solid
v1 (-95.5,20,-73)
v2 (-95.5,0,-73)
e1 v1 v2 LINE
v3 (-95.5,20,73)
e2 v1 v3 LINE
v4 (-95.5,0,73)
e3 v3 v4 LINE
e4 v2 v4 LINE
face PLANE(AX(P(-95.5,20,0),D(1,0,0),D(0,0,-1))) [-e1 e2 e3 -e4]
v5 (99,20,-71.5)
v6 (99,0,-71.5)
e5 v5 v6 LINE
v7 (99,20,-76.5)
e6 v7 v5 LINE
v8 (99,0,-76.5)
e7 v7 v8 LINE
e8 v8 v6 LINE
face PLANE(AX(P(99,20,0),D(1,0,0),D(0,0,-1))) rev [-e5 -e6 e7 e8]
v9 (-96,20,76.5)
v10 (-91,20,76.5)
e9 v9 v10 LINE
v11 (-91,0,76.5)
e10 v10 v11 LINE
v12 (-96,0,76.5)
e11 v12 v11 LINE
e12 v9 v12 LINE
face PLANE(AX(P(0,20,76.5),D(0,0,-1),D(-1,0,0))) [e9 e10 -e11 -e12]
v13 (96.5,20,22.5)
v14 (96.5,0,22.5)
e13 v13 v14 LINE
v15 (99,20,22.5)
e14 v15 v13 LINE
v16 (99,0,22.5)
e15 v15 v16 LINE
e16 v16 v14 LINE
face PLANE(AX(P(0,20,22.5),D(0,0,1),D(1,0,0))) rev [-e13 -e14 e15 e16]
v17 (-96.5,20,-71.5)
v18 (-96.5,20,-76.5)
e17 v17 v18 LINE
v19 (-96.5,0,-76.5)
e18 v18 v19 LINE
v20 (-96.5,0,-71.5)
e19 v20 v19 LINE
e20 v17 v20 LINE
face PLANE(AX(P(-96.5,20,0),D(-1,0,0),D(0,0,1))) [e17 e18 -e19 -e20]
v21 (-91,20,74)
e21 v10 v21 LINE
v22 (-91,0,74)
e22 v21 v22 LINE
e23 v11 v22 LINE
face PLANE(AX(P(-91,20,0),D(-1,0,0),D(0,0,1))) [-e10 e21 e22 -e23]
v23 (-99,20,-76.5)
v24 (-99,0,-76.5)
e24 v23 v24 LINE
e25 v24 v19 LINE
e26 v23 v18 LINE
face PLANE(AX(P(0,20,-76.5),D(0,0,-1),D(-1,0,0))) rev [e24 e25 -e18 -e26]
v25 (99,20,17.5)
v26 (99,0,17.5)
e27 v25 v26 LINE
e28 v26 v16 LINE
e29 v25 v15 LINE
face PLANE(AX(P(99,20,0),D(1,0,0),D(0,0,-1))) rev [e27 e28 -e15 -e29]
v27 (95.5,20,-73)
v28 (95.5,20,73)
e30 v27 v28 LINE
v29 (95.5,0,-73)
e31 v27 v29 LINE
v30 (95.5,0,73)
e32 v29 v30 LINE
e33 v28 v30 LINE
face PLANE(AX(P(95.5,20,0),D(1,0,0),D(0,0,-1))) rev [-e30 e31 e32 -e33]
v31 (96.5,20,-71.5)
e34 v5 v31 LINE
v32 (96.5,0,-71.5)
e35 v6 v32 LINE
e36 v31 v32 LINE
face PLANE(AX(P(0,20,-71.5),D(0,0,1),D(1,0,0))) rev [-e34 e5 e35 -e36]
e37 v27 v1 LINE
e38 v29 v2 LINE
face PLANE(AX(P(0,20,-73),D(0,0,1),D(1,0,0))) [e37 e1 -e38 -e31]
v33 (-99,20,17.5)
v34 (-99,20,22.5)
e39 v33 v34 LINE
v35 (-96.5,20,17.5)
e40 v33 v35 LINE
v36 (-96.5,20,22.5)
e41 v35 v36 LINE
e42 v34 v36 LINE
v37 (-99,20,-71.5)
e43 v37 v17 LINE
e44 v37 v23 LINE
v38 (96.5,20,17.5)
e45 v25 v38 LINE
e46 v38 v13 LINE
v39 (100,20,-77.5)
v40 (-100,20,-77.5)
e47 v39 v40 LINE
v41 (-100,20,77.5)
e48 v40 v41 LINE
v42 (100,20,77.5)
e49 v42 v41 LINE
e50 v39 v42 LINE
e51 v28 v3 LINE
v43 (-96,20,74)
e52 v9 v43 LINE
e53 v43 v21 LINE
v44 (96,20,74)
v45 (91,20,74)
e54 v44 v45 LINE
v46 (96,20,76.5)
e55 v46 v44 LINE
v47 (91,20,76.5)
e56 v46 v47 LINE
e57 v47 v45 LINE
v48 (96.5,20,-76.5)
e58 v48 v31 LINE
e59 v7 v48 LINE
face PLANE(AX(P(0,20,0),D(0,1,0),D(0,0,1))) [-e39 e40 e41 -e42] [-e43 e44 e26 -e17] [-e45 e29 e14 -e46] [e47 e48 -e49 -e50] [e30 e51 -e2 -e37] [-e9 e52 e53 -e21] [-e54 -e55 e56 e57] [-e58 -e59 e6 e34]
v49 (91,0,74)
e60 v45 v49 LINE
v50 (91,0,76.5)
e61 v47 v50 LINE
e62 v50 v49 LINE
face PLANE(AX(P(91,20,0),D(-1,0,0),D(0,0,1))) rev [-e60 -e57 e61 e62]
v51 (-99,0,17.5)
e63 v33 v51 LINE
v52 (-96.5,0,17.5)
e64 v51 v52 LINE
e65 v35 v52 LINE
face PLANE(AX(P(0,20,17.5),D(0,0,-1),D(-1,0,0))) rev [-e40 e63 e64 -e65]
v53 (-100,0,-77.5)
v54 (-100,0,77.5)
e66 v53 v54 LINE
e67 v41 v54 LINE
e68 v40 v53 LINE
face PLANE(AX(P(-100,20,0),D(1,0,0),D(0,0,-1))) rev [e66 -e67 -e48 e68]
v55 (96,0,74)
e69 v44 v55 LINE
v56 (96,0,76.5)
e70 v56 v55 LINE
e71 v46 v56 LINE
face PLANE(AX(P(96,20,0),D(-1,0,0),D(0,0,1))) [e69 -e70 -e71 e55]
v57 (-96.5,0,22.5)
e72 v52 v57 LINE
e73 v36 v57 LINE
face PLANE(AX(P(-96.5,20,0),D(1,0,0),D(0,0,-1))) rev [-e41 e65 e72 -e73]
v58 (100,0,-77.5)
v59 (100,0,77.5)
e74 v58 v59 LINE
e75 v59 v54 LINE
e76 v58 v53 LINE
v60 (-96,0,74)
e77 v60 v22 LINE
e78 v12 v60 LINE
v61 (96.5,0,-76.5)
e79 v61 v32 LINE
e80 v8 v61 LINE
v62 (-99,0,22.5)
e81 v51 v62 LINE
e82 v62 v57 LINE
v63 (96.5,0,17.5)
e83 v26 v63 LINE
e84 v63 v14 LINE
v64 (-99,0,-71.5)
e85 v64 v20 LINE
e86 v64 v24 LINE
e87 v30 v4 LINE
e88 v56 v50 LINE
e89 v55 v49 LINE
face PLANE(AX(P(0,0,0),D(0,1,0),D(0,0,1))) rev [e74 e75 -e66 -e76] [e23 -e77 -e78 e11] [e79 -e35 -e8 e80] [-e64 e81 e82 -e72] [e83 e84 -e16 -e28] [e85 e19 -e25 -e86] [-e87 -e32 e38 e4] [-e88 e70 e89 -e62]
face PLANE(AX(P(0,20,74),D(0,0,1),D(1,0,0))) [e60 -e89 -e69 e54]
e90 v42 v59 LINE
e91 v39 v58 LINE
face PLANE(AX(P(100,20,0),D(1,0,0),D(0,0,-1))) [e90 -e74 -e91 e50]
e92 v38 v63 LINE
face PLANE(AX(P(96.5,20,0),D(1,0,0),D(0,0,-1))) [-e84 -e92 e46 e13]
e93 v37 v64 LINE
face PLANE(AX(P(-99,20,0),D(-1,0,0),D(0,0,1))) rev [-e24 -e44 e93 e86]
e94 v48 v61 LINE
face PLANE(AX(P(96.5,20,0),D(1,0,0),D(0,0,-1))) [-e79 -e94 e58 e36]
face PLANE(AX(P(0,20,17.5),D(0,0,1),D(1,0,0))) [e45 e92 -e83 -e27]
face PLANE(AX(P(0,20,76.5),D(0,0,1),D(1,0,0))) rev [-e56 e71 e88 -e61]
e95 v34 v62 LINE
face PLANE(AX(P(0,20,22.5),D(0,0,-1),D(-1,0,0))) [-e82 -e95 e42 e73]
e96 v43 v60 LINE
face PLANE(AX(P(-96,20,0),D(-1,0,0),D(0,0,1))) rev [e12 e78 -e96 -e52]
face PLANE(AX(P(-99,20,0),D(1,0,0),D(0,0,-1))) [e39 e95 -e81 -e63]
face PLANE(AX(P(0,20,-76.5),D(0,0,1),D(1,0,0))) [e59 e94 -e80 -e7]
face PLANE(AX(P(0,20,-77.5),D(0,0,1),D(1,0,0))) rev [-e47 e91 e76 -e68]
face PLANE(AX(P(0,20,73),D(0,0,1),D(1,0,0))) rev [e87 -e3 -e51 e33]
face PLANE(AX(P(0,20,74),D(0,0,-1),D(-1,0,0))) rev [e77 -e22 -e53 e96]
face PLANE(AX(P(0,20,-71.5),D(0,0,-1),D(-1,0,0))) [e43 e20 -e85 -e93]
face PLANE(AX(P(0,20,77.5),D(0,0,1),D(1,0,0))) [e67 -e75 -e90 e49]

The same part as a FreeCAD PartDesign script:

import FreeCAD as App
import Part
import Sketcher
from FreeCAD import Vector

doc = App.newDocument("Part")
body = doc.addObject("PartDesign::Body", "Body")

# Sketch on XZ plane
sketch1 = body.newObject("Sketcher::SketchObject", "Sketch")
sketch1.AttachmentSupport = (doc.getObject("XZ_Plane"), [""])
sketch1.MapMode = "FlatFace"
sketch1.addGeometry(Part.LineSegment(Vector(-100, -77.5, 0), Vector(-100, 77.5, 0)), False)
sketch1.addGeometry(Part.LineSegment(Vector(-100, 77.5, 0), Vector(100, 77.5, 0)), False)
sketch1.addGeometry(Part.LineSegment(Vector(100, 77.5, 0), Vector(100, -77.5, 0)), False)
sketch1.addGeometry(Part.LineSegment(Vector(100, -77.5, 0), Vector(-100, -77.5, 0)), False)
sketch1.addGeometry(Part.LineSegment(Vector(-91, 76.5, 0), Vector(-96, 76.5, 0)), False)
sketch1.addGeometry(Part.LineSegment(Vector(-96, 76.5, 0), Vector(-96, 74, 0)), False)
sketch1.addGeometry(Part.LineSegment(Vector(-96, 74, 0), Vector(-91, 74, 0)), False)
sketch1.addGeometry(Part.LineSegment(Vector(-91, 74, 0), Vector(-91, 76.5, 0)), False)
sketch1.addGeometry(Part.LineSegment(Vector(-96.5, 22.5, 0), Vector(-99, 22.5, 0)), False)
sketch1.addGeometry(Part.LineSegment(Vector(-99, 22.5, 0), Vector(-99, 17.5, 0)), False)
sketch1.addGeometry(Part.LineSegment(Vector(-99, 17.5, 0), Vector(-96.5, 17.5, 0)), False)
sketch1.addGeometry(Part.LineSegment(Vector(-96.5, 17.5, 0), Vector(-96.5, 22.5, 0)), False)
sketch1.addGeometry(Part.LineSegment(Vector(96, 76.5, 0), Vector(91, 76.5, 0)), False)
sketch1.addGeometry(Part.LineSegment(Vector(91, 76.5, 0), Vector(91, 74, 0)), False)
sketch1.addGeometry(Part.LineSegment(Vector(91, 74, 0), Vector(96, 74, 0)), False)
sketch1.addGeometry(Part.LineSegment(Vector(96, 74, 0), Vector(96, 76.5, 0)), False)
sketch1.addGeometry(Part.LineSegment(Vector(99, 22.5, 0), Vector(96.5, 22.5, 0)), False)
sketch1.addGeometry(Part.LineSegment(Vector(96.5, 22.5, 0), Vector(96.5, 17.5, 0)), False)
sketch1.addGeometry(Part.LineSegment(Vector(96.5, 17.5, 0), Vector(99, 17.5, 0)), False)
sketch1.addGeometry(Part.LineSegment(Vector(99, 17.5, 0), Vector(99, 22.5, 0)), False)
sketch1.addGeometry(Part.LineSegment(Vector(-96.5, -71.5, 0), Vector(-99, -71.5, 0)), False)
sketch1.addGeometry(Part.LineSegment(Vector(-99, -71.5, 0), Vector(-99, -76.5, 0)), False)
sketch1.addGeometry(Part.LineSegment(Vector(-99, -76.5, 0), Vector(-96.5, -76.5, 0)), False)
sketch1.addGeometry(Part.LineSegment(Vector(-96.5, -76.5, 0), Vector(-96.5, -71.5, 0)), False)
sketch1.addGeometry(Part.LineSegment(Vector(95.5, 73, 0), Vector(-95.5, 73, 0)), False)
sketch1.addGeometry(Part.LineSegment(Vector(-95.5, 73, 0), Vector(-95.5, -73, 0)), False)
sketch1.addGeometry(Part.LineSegment(Vector(-95.5, -73, 0), Vector(95.5, -73, 0)), False)
sketch1.addGeometry(Part.LineSegment(Vector(95.5, -73, 0), Vector(95.5, 73, 0)), False)
sketch1.addGeometry(Part.LineSegment(Vector(99, -71.5, 0), Vector(96.5, -71.5, 0)), False)
sketch1.addGeometry(Part.LineSegment(Vector(96.5, -71.5, 0), Vector(96.5, -76.5, 0)), False)
sketch1.addGeometry(Part.LineSegment(Vector(96.5, -76.5, 0), Vector(99, -76.5, 0)), False)
sketch1.addGeometry(Part.LineSegment(Vector(99, -76.5, 0), Vector(99, -71.5, 0)), False)
sketch1.addConstraint(Sketcher.Constraint("Coincident", 0, 2, 1, 1))
sketch1.addConstraint(Sketcher.Constraint("Coincident", 1, 2, 2, 1))
sketch1.addConstraint(Sketcher.Constraint("Coincident", 2, 2, 3, 1))
sketch1.addConstraint(Sketcher.Constraint("Coincident", 3, 2, 0, 1))
sketch1.addConstraint(Sketcher.Constraint("Coincident", 4, 2, 5, 1))
sketch1.addConstraint(Sketcher.Constraint("Coincident", 5, 2, 6, 1))
sketch1.addConstraint(Sketcher.Constraint("Coincident", 6, 2, 7, 1))
sketch1.addConstraint(Sketcher.Constraint("Coincident", 7, 2, 4, 1))
sketch1.addConstraint(Sketcher.Constraint("Coincident", 8, 2, 9, 1))
sketch1.addConstraint(Sketcher.Constraint("Coincident", 9, 2, 10, 1))
sketch1.addConstraint(Sketcher.Constraint("Coincident", 10, 2, 11, 1))
sketch1.addConstraint(Sketcher.Constraint("Coincident", 11, 2, 8, 1))
sketch1.addConstraint(Sketcher.Constraint("Coincident", 12, 2, 13, 1))
sketch1.addConstraint(Sketcher.Constraint("Coincident", 13, 2, 14, 1))
sketch1.addConstraint(Sketcher.Constraint("Coincident", 14, 2, 15, 1))
sketch1.addConstraint(Sketcher.Constraint("Coincident", 15, 2, 12, 1))
sketch1.addConstraint(Sketcher.Constraint("Coincident", 16, 2, 17, 1))
sketch1.addConstraint(Sketcher.Constraint("Coincident", 17, 2, 18, 1))
sketch1.addConstraint(Sketcher.Constraint("Coincident", 18, 2, 19, 1))
sketch1.addConstraint(Sketcher.Constraint("Coincident", 19, 2, 16, 1))
sketch1.addConstraint(Sketcher.Constraint("Coincident", 20, 2, 21, 1))
sketch1.addConstraint(Sketcher.Constraint("Coincident", 21, 2, 22, 1))
sketch1.addConstraint(Sketcher.Constraint("Coincident", 22, 2, 23, 1))
sketch1.addConstraint(Sketcher.Constraint("Coincident", 23, 2, 20, 1))
sketch1.addConstraint(Sketcher.Constraint("Coincident", 24, 2, 25, 1))
sketch1.addConstraint(Sketcher.Constraint("Coincident", 25, 2, 26, 1))
sketch1.addConstraint(Sketcher.Constraint("Coincident", 26, 2, 27, 1))
sketch1.addConstraint(Sketcher.Constraint("Coincident", 27, 2, 24, 1))
sketch1.addConstraint(Sketcher.Constraint("Coincident", 28, 2, 29, 1))
sketch1.addConstraint(Sketcher.Constraint("Coincident", 29, 2, 30, 1))
sketch1.addConstraint(Sketcher.Constraint("Coincident", 30, 2, 31, 1))
sketch1.addConstraint(Sketcher.Constraint("Coincident", 31, 2, 28, 1))
sketch1.addConstraint(Sketcher.Constraint("Vertical", 0))
sketch1.addConstraint(Sketcher.Constraint("Horizontal", 1))
sketch1.addConstraint(Sketcher.Constraint("Vertical", 2))
sketch1.addConstraint(Sketcher.Constraint("Horizontal", 3))
sketch1.addConstraint(Sketcher.Constraint("Horizontal", 4))
sketch1.addConstraint(Sketcher.Constraint("Vertical", 5))
sketch1.addConstraint(Sketcher.Constraint("Horizontal", 6))
sketch1.addConstraint(Sketcher.Constraint("Vertical", 7))
sketch1.addConstraint(Sketcher.Constraint("Horizontal", 8))
sketch1.addConstraint(Sketcher.Constraint("Vertical", 9))
sketch1.addConstraint(Sketcher.Constraint("Horizontal", 10))
sketch1.addConstraint(Sketcher.Constraint("Vertical", 11))
sketch1.addConstraint(Sketcher.Constraint("Horizontal", 12))
sketch1.addConstraint(Sketcher.Constraint("Vertical", 13))
sketch1.addConstraint(Sketcher.Constraint("Horizontal", 14))
sketch1.addConstraint(Sketcher.Constraint("Vertical", 15))
sketch1.addConstraint(Sketcher.Constraint("Horizontal", 16))
sketch1.addConstraint(Sketcher.Constraint("Vertical", 17))
sketch1.addConstraint(Sketcher.Constraint("Horizontal", 18))
sketch1.addConstraint(Sketcher.Constraint("Vertical", 19))
sketch1.addConstraint(Sketcher.Constraint("Horizontal", 20))
sketch1.addConstraint(Sketcher.Constraint("Vertical", 21))
sketch1.addConstraint(Sketcher.Constraint("Horizontal", 22))
sketch1.addConstraint(Sketcher.Constraint("Vertical", 23))
sketch1.addConstraint(Sketcher.Constraint("Horizontal", 24))
sketch1.addConstraint(Sketcher.Constraint("Vertical", 25))
sketch1.addConstraint(Sketcher.Constraint("Horizontal", 26))
sketch1.addConstraint(Sketcher.Constraint("Vertical", 27))
sketch1.addConstraint(Sketcher.Constraint("Horizontal", 28))
sketch1.addConstraint(Sketcher.Constraint("Vertical", 29))
sketch1.addConstraint(Sketcher.Constraint("Horizontal", 30))
sketch1.addConstraint(Sketcher.Constraint("Vertical", 31))
sketch1.addConstraint(Sketcher.Constraint("Symmetric", 0, 2, 2, 2, -1, 1))
sketch1.addConstraint(Sketcher.Constraint("Symmetric", 24, 2, 26, 2, -1, 1))
sketch1.addConstraint(Sketcher.Constraint("Symmetric", 7, 2, 12, 2, -2))
sketch1.addConstraint(Sketcher.Constraint("Symmetric", 5, 2, 14, 2, -2))
sketch1.addConstraint(Sketcher.Constraint("Symmetric", 11, 2, 16, 2, -2))
sketch1.addConstraint(Sketcher.Constraint("Symmetric", 9, 2, 18, 2, -2))
sketch1.addConstraint(Sketcher.Constraint("Symmetric", 23, 2, 28, 2, -2))
sketch1.addConstraint(Sketcher.Constraint("Symmetric", 21, 2, 30, 2, -2))
sketch1.addConstraint(Sketcher.Constraint("Vertical", 9, 2, 20, 2))
sketch1.addConstraint(Sketcher.Constraint("Vertical", 11, 2, 22, 2))
sketch1.addConstraint(Sketcher.Constraint("Equal", 30, 5))
sketch1.addConstraint(Sketcher.Constraint("Equal", 14, 9))
sketch1.addConstraint(Sketcher.Constraint("Equal", 19, 21))
sketch1.addConstraint(Sketcher.Constraint("DistanceX", 1, 1, 1, 2, 200.0))
sketch1.addConstraint(Sketcher.Constraint("DistanceX", 4, 2, 4, 1, 5.0))
sketch1.addConstraint(Sketcher.Constraint("DistanceX", 24, 2, 24, 1, 191.0))
sketch1.addConstraint(Sketcher.Constraint("DistanceY", 0, 1, 0, 2, 155.0))
sketch1.addConstraint(Sketcher.Constraint("DistanceY", 25, 2, 25, 1, 146.0))
sketch1.addConstraint(Sketcher.Constraint("DistanceX", 8, 2, 8, 1, 2.5))
sketch1.addConstraint(Sketcher.Constraint("DistanceX", 4, 2, -1, 1, 96.0))
sketch1.addConstraint(Sketcher.Constraint("DistanceY", -1, 1, 5, 2, 74.0))
sketch1.addConstraint(Sketcher.Constraint("DistanceX", 8, 2, -1, 1, 99.0))
sketch1.addConstraint(Sketcher.Constraint("DistanceY", 8, 2, 4, 2, 54.0))
sketch1.addConstraint(Sketcher.Constraint("DistanceY", 3, 2, 20, 2, 6.0))
pad1 = body.newObject("PartDesign::Pad", "Pad")
pad1.Profile = sketch1
pad1.Length = 20
pad1.Reversed = True

doc.recompute()
